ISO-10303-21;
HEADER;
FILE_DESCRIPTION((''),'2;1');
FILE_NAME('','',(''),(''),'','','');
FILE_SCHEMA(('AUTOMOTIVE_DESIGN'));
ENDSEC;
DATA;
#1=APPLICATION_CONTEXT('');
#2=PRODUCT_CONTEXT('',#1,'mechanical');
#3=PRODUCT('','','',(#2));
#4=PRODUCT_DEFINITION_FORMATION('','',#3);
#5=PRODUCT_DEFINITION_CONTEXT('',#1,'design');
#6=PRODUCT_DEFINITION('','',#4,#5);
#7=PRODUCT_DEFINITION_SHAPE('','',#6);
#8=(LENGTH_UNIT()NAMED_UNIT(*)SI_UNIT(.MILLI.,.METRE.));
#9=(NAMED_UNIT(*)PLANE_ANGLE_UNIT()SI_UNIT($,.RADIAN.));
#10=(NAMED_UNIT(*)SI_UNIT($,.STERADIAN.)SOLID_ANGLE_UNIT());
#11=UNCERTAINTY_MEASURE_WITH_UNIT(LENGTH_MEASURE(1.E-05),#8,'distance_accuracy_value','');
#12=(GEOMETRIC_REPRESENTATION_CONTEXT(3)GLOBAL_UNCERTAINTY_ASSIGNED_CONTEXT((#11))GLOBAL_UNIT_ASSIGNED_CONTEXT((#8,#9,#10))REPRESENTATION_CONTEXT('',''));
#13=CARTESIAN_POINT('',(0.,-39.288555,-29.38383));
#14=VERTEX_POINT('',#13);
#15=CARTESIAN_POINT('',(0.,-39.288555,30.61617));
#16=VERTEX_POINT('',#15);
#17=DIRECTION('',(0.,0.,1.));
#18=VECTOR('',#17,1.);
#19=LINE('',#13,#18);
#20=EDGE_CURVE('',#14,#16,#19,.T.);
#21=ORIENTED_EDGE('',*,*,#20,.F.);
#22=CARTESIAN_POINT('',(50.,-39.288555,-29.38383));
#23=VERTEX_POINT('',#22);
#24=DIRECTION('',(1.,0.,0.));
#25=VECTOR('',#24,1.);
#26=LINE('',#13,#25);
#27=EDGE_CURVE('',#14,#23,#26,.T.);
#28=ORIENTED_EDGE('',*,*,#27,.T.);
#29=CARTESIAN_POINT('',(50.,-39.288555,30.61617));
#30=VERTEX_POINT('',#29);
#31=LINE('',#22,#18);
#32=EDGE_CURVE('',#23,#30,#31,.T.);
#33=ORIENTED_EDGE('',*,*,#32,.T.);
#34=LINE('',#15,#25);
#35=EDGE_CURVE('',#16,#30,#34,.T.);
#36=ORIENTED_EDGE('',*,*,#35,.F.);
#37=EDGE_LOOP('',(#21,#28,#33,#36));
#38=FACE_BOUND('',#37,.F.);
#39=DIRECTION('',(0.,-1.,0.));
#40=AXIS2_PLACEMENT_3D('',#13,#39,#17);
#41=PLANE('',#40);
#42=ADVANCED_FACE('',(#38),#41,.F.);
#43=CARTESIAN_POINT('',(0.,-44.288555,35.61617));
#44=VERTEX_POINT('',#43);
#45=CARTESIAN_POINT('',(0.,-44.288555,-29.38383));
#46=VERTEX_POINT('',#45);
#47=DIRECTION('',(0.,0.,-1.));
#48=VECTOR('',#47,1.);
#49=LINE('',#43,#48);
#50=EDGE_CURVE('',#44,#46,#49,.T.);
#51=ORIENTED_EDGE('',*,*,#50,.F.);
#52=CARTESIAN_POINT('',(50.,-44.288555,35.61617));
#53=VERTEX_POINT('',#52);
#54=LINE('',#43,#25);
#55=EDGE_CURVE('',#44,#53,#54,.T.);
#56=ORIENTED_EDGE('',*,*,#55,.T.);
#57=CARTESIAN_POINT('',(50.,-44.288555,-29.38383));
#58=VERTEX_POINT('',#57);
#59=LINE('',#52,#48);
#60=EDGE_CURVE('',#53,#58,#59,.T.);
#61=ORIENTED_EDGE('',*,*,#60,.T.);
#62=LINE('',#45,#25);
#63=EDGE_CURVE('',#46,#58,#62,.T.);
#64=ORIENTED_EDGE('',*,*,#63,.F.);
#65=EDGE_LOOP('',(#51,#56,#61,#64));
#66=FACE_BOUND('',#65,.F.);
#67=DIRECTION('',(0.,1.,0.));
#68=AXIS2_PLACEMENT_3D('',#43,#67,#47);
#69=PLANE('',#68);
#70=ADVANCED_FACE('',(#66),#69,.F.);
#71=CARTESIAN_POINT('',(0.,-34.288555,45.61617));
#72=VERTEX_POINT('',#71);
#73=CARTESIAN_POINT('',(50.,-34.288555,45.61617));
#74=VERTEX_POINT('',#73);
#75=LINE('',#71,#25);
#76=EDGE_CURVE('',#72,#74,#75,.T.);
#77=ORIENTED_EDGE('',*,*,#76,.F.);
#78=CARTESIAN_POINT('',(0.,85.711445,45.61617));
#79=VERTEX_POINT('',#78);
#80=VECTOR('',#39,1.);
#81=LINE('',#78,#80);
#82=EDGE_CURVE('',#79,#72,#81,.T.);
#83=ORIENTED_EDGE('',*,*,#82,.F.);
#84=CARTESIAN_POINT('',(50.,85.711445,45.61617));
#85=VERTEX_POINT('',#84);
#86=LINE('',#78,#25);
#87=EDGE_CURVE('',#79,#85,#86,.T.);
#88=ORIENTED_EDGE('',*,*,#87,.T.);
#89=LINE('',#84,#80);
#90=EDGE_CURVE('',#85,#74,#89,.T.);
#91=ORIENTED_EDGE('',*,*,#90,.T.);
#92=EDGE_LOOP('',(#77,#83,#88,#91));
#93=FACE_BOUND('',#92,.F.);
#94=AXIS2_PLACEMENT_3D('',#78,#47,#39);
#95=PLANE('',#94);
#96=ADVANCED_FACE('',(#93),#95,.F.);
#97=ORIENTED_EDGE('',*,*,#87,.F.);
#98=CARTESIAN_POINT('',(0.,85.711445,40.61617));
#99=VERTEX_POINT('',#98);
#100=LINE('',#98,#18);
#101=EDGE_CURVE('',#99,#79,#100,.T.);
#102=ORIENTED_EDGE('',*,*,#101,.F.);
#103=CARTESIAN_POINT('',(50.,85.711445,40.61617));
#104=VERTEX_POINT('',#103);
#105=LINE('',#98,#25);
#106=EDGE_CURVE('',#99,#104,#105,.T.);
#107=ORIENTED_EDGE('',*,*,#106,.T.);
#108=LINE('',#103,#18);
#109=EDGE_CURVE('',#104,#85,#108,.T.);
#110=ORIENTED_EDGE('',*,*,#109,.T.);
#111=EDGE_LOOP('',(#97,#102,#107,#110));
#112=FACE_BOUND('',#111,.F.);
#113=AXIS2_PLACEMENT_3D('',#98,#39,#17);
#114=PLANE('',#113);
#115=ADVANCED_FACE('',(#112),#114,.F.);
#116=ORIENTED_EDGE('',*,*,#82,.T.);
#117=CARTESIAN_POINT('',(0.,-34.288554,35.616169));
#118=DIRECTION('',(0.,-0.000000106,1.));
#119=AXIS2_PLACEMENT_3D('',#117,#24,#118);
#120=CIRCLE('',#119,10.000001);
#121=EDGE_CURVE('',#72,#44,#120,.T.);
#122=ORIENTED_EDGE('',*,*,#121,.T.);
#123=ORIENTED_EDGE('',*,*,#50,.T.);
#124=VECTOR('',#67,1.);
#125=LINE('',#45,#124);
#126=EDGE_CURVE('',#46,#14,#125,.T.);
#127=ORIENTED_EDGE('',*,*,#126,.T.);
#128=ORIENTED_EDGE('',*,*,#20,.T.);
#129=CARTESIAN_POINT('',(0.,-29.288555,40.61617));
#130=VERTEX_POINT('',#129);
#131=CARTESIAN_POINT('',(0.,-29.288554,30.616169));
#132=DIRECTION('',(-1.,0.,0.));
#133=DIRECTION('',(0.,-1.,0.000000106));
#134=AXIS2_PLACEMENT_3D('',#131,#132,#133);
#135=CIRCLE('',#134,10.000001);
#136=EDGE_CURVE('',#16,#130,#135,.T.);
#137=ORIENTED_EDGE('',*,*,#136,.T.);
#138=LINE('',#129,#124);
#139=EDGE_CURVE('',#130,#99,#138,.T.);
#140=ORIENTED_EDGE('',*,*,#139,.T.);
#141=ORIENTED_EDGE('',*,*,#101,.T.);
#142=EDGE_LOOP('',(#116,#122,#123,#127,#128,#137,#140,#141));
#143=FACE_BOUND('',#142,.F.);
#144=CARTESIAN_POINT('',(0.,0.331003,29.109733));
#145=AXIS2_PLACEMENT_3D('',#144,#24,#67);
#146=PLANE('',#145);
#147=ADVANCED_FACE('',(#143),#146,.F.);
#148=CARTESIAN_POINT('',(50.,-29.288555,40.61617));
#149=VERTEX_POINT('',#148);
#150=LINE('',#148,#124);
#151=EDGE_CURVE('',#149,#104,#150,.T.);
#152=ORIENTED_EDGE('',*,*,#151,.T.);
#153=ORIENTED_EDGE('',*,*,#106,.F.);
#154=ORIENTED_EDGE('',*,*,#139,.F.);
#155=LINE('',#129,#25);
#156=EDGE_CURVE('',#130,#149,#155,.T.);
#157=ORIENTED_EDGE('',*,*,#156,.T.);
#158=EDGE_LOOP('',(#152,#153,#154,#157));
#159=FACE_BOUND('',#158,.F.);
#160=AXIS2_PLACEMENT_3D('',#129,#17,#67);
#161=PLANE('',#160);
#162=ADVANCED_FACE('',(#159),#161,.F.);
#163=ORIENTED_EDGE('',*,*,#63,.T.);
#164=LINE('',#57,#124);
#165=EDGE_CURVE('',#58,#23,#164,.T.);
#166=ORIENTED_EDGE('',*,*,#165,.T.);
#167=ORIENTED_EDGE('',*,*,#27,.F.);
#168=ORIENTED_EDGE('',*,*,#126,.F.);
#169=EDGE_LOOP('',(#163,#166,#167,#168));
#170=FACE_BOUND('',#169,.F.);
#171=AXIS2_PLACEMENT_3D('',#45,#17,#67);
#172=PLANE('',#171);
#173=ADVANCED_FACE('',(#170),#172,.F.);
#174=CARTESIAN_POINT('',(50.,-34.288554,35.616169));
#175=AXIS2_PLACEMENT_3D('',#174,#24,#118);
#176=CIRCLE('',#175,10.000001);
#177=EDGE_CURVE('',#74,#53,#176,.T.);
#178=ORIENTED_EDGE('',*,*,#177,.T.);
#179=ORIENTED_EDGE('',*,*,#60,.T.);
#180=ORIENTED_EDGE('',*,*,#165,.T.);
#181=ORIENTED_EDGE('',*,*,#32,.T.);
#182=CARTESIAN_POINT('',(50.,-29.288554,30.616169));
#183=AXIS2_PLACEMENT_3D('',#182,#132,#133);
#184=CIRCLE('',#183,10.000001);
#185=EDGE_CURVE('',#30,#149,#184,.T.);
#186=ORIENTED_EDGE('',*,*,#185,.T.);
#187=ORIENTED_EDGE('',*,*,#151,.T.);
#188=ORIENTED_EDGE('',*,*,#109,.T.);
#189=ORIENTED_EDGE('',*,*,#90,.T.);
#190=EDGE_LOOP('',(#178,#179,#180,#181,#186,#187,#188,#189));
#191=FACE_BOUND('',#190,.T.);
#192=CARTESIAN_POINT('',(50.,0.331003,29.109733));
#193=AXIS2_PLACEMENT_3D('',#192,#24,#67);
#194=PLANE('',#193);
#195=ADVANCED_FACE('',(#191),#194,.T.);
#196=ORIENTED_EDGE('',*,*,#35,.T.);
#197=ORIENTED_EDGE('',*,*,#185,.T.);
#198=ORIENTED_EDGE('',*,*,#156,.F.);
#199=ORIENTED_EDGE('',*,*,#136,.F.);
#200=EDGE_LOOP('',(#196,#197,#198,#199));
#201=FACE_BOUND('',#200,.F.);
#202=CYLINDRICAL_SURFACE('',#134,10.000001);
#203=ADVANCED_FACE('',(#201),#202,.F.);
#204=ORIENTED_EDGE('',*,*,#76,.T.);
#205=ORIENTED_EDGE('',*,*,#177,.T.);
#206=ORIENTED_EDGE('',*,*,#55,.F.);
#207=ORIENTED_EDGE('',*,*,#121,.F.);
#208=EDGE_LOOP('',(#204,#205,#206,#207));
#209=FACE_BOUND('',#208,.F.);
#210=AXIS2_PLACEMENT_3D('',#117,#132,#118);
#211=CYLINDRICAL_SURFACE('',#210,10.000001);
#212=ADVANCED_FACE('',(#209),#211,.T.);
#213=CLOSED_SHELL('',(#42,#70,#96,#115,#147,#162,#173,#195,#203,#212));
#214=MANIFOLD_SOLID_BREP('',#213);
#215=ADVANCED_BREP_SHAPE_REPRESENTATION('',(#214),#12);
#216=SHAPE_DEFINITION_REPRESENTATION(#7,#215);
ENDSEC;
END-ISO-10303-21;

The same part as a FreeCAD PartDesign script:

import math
import FreeCAD as App
import Part
import Sketcher

V = App.Vector
Q = App.Units.Quantity

doc = App.newDocument("Part")
body = doc.addObject("PartDesign::Body", "Body")

sketch1 = body.newObject("Sketcher::SketchObject", "Sketch")
sketch1.AttachmentSupport = (doc.getObject("YZ_Plane"), [""])
sketch1.MapMode = "FlatFace"
sketch1.addGeometry([
    Part.LineSegment(V(86, 46, 0), V(-34, 46, 0)),
    Part.ArcOfCircle(Part.Circle(V(-34, 36, 0), V(0, 0, 1), 10), math.radians(90), math.radians(180)),
    Part.LineSegment(V(-44, 36, 0), V(-44, -29, 0)),
    Part.LineSegment(V(-44, -29, 0), V(-39, -29, 0)),
    Part.LineSegment(V(-39, -29, 0), V(-39, 31, 0)),
    Part.ArcOfCircle(Part.Circle(V(-29, 31, 0), V(0, 0, 1), 10), math.radians(90), math.radians(180)),
    Part.LineSegment(V(-29, 41, 0), V(86, 41, 0)),
    Part.LineSegment(V(86, 41, 0), V(86, 46, 0)),
], False)
sketch1.addConstraint([
    Sketcher.Constraint("Tangent", 0, 2, 1, 1),
    Sketcher.Constraint("Tangent", 1, 2, 2, 1),
    Sketcher.Constraint("Coincident", 2, 2, 3, 1),
    Sketcher.Constraint("Coincident", 3, 2, 4, 1),
    Sketcher.Constraint("Tangent", 4, 2, 5, 2),
    Sketcher.Constraint("Tangent", 5, 1, 6, 1),
    Sketcher.Constraint("Coincident", 6, 2, 7, 1),
    Sketcher.Constraint("Coincident", 7, 2, 0, 1),
    Sketcher.Constraint("Horizontal", 0),
    Sketcher.Constraint("Vertical", 2),
    Sketcher.Constraint("Horizontal", 3),
    Sketcher.Constraint("Vertical", 4),
    Sketcher.Constraint("Horizontal", 6),
    Sketcher.Constraint("Vertical", 7),
    Sketcher.Constraint("Equal", 1, 5),
    Sketcher.Constraint("Equal", 3, 7),
    Sketcher.Constraint("Radius", 1, Q("10.000001 mm")),
    Sketcher.Constraint("DistanceX", 0, 2, 0, 1, Q("120 mm")),
    Sketcher.Constraint("DistanceX", 3, 1, 3, 2, Q("5 mm")),
    Sketcher.Constraint("DistanceY", 2, 2, 2, 1, Q("65 mm")),
    Sketcher.Constraint("DistanceY", -1, 1, 1, 3, Q("35.616169 mm")),
    Sketcher.Constraint("DistanceX", 1, 3, -1, 1, Q("34.288554 mm")),
])
pad1 = body.newObject("PartDesign::Pad", "Pad")
pad1.Profile = sketch1
pad1.Length = 50

doc.recompute()
